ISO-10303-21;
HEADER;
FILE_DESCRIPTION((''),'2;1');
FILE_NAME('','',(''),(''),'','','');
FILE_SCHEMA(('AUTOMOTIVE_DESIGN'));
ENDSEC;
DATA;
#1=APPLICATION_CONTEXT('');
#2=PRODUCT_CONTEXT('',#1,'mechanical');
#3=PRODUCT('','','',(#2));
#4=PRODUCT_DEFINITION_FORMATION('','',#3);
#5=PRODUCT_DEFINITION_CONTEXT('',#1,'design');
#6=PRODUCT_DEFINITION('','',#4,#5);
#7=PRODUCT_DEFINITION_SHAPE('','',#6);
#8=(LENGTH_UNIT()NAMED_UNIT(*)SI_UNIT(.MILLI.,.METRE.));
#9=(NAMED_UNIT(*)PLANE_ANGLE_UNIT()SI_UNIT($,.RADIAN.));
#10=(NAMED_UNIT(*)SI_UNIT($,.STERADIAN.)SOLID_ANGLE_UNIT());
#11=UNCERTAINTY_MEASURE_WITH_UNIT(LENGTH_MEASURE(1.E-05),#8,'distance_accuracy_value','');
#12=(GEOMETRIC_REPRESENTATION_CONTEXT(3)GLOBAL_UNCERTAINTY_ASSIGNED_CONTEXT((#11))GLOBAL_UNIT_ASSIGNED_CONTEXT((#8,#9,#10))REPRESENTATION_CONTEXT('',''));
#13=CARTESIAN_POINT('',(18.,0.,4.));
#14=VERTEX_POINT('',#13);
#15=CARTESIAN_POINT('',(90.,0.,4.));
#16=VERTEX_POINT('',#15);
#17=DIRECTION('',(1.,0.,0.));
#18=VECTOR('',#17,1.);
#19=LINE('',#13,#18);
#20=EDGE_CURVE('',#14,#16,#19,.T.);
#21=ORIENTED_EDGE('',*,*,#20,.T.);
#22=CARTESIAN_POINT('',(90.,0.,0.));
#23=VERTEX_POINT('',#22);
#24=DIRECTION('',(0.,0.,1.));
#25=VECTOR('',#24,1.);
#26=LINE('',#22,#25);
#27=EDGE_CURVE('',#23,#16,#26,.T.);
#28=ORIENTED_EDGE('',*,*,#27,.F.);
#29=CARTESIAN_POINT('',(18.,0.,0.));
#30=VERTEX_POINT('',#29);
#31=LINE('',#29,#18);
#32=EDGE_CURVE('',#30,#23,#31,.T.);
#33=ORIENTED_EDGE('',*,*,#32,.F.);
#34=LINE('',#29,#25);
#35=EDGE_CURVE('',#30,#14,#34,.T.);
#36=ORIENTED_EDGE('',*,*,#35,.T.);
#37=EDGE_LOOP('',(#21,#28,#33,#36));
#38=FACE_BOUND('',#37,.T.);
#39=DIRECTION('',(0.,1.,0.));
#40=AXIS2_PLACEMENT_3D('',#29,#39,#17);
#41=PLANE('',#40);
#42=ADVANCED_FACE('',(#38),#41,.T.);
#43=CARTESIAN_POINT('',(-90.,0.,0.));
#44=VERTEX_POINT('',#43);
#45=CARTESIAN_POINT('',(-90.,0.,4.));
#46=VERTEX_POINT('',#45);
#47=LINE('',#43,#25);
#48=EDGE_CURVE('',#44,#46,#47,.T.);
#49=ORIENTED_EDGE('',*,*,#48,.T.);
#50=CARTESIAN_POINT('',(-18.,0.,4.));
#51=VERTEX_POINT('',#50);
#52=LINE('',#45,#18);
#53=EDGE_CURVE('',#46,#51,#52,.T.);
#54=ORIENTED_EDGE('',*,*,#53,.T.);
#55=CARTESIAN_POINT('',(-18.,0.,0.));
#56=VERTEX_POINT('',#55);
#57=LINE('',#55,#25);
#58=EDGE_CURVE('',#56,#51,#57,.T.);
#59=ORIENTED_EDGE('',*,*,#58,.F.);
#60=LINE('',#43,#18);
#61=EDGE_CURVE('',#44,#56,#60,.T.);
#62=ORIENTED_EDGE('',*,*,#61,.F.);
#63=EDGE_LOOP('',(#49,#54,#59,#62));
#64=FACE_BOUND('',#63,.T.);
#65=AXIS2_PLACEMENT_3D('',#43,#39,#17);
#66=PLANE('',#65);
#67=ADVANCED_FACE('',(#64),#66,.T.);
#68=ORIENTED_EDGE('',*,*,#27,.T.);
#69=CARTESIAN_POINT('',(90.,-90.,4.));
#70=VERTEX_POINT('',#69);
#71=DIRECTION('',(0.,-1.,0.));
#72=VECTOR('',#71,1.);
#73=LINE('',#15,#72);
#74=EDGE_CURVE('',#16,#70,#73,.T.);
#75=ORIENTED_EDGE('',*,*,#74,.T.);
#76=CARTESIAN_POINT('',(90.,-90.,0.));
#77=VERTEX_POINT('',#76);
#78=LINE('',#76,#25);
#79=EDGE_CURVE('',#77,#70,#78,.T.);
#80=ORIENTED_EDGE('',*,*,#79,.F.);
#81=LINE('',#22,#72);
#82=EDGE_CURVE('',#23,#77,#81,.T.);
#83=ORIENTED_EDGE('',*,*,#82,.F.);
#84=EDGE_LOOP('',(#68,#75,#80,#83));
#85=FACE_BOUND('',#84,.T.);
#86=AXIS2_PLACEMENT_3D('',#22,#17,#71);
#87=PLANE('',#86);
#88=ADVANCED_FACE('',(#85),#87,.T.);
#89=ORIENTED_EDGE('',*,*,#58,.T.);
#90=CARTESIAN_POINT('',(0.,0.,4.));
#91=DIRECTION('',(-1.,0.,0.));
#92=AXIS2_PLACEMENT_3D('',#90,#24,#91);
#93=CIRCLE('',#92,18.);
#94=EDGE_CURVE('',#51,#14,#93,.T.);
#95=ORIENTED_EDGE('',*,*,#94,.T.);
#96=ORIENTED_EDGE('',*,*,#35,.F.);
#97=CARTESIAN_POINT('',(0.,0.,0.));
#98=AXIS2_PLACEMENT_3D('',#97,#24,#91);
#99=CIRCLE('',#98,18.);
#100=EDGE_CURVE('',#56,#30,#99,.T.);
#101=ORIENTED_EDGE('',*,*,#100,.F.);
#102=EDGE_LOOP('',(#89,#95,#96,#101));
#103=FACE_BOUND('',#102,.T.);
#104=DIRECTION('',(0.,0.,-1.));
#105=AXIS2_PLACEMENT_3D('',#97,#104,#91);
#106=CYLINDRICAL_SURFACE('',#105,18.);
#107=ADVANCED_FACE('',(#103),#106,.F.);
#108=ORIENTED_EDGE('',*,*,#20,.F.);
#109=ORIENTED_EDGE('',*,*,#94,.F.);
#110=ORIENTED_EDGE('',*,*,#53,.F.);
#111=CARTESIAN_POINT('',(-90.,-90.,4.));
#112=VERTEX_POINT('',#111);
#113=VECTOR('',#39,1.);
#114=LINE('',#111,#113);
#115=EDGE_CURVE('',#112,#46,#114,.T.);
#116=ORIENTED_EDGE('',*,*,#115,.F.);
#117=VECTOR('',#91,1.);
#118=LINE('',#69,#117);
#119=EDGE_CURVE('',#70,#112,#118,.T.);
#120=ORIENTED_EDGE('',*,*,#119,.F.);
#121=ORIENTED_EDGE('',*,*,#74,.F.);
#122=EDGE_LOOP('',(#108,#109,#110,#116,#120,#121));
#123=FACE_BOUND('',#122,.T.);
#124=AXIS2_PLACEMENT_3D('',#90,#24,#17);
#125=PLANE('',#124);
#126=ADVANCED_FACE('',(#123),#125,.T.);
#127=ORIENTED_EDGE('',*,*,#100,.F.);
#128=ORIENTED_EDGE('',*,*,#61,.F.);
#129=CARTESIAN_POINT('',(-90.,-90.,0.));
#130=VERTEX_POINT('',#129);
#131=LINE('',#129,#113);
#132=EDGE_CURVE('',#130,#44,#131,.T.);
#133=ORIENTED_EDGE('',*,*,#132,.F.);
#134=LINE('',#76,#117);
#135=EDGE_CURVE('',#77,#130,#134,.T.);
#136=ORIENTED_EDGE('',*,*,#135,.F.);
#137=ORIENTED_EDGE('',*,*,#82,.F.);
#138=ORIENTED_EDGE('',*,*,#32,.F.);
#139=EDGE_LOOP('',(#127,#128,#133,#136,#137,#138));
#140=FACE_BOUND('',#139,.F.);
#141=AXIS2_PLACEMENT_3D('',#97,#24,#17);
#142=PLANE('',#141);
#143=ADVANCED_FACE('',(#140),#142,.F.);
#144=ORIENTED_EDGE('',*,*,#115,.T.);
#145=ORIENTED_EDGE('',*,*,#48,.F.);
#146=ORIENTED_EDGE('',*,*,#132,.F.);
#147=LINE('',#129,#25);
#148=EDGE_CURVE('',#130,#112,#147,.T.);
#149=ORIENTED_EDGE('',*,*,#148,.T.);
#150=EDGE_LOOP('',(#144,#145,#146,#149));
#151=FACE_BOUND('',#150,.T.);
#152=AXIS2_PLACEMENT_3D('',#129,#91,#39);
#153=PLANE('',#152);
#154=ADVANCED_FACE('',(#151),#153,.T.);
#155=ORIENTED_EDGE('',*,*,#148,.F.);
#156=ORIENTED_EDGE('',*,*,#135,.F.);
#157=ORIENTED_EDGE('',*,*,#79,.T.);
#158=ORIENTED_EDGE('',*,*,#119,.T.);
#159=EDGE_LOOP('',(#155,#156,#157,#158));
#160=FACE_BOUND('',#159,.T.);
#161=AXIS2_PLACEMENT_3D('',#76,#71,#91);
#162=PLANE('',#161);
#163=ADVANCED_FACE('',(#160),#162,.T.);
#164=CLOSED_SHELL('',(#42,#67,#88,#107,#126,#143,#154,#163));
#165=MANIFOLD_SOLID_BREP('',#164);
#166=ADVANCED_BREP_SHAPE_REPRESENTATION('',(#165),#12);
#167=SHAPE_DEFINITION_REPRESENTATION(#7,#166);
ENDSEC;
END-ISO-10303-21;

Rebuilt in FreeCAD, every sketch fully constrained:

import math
import FreeCAD as App
import Part
import Sketcher
from FreeCAD import Vector
Q = App.Units.Quantity

doc = App.newDocument("Part")
body = doc.addObject("PartDesign::Body", "Body")

sketch1 = body.newObject("Sketcher::SketchObject", "Sketch")
sketch1.AttachmentSupport = (doc.getObject("XY_Plane"), [""])
sketch1.MapMode = "FlatFace"
sketch1.addGeometry([
    Part.LineSegment(Vector(90, -90, 0), Vector(90, 0, 0)),
    Part.LineSegment(Vector(90, 0, 0), Vector(18, 0, 0)),
    Part.ArcOfCircle(Part.Circle(Vector(0, 0, 0), Vector(0, 0, 1), 18), math.radians(180), math.radians(360)),
    Part.LineSegment(Vector(-18, 0, 0), Vector(-90, 0, 0)),
    Part.LineSegment(Vector(-90, 0, 0), Vector(-90, -90, 0)),
    Part.LineSegment(Vector(-90, -90, 0), Vector(90, -90, 0)),
], False)
sketch1.addConstraint([
    Sketcher.Constraint("Coincident", 0, 2, 1, 1),
    Sketcher.Constraint("Coincident", 1, 2, 2, 2),
    Sketcher.Constraint("Coincident", 2, 1, 3, 1),
    Sketcher.Constraint("Coincident", 3, 2, 4, 1),
    Sketcher.Constraint("Coincident", 4, 2, 5, 1),
    Sketcher.Constraint("Coincident", 5, 2, 0, 1),
    Sketcher.Constraint("Vertical", 0),
    Sketcher.Constraint("Horizontal", 1),
    Sketcher.Constraint("Horizontal", 3),
    Sketcher.Constraint("Vertical", 4),
    Sketcher.Constraint("Horizontal", 5),
    Sketcher.Constraint("Coincident", 2, 3, -1, 1),
    Sketcher.Constraint("Symmetric", 0, 2, 3, 2, -1, 1),
    Sketcher.Constraint("PointOnObject", 0, 2, -1),
    Sketcher.Constraint("Radius", 2, Q("18 mm")),
    Sketcher.Constraint("DistanceX", 5, 1, 5, 2, Q("180 mm")),
    Sketcher.Constraint("DistanceY", 0, 1, 0, 2, Q("90 mm")),
])
pad1 = body.newObject("PartDesign::Pad", "Pad")
pad1.Profile = sketch1
pad1.Length = 4

doc.recompute()
